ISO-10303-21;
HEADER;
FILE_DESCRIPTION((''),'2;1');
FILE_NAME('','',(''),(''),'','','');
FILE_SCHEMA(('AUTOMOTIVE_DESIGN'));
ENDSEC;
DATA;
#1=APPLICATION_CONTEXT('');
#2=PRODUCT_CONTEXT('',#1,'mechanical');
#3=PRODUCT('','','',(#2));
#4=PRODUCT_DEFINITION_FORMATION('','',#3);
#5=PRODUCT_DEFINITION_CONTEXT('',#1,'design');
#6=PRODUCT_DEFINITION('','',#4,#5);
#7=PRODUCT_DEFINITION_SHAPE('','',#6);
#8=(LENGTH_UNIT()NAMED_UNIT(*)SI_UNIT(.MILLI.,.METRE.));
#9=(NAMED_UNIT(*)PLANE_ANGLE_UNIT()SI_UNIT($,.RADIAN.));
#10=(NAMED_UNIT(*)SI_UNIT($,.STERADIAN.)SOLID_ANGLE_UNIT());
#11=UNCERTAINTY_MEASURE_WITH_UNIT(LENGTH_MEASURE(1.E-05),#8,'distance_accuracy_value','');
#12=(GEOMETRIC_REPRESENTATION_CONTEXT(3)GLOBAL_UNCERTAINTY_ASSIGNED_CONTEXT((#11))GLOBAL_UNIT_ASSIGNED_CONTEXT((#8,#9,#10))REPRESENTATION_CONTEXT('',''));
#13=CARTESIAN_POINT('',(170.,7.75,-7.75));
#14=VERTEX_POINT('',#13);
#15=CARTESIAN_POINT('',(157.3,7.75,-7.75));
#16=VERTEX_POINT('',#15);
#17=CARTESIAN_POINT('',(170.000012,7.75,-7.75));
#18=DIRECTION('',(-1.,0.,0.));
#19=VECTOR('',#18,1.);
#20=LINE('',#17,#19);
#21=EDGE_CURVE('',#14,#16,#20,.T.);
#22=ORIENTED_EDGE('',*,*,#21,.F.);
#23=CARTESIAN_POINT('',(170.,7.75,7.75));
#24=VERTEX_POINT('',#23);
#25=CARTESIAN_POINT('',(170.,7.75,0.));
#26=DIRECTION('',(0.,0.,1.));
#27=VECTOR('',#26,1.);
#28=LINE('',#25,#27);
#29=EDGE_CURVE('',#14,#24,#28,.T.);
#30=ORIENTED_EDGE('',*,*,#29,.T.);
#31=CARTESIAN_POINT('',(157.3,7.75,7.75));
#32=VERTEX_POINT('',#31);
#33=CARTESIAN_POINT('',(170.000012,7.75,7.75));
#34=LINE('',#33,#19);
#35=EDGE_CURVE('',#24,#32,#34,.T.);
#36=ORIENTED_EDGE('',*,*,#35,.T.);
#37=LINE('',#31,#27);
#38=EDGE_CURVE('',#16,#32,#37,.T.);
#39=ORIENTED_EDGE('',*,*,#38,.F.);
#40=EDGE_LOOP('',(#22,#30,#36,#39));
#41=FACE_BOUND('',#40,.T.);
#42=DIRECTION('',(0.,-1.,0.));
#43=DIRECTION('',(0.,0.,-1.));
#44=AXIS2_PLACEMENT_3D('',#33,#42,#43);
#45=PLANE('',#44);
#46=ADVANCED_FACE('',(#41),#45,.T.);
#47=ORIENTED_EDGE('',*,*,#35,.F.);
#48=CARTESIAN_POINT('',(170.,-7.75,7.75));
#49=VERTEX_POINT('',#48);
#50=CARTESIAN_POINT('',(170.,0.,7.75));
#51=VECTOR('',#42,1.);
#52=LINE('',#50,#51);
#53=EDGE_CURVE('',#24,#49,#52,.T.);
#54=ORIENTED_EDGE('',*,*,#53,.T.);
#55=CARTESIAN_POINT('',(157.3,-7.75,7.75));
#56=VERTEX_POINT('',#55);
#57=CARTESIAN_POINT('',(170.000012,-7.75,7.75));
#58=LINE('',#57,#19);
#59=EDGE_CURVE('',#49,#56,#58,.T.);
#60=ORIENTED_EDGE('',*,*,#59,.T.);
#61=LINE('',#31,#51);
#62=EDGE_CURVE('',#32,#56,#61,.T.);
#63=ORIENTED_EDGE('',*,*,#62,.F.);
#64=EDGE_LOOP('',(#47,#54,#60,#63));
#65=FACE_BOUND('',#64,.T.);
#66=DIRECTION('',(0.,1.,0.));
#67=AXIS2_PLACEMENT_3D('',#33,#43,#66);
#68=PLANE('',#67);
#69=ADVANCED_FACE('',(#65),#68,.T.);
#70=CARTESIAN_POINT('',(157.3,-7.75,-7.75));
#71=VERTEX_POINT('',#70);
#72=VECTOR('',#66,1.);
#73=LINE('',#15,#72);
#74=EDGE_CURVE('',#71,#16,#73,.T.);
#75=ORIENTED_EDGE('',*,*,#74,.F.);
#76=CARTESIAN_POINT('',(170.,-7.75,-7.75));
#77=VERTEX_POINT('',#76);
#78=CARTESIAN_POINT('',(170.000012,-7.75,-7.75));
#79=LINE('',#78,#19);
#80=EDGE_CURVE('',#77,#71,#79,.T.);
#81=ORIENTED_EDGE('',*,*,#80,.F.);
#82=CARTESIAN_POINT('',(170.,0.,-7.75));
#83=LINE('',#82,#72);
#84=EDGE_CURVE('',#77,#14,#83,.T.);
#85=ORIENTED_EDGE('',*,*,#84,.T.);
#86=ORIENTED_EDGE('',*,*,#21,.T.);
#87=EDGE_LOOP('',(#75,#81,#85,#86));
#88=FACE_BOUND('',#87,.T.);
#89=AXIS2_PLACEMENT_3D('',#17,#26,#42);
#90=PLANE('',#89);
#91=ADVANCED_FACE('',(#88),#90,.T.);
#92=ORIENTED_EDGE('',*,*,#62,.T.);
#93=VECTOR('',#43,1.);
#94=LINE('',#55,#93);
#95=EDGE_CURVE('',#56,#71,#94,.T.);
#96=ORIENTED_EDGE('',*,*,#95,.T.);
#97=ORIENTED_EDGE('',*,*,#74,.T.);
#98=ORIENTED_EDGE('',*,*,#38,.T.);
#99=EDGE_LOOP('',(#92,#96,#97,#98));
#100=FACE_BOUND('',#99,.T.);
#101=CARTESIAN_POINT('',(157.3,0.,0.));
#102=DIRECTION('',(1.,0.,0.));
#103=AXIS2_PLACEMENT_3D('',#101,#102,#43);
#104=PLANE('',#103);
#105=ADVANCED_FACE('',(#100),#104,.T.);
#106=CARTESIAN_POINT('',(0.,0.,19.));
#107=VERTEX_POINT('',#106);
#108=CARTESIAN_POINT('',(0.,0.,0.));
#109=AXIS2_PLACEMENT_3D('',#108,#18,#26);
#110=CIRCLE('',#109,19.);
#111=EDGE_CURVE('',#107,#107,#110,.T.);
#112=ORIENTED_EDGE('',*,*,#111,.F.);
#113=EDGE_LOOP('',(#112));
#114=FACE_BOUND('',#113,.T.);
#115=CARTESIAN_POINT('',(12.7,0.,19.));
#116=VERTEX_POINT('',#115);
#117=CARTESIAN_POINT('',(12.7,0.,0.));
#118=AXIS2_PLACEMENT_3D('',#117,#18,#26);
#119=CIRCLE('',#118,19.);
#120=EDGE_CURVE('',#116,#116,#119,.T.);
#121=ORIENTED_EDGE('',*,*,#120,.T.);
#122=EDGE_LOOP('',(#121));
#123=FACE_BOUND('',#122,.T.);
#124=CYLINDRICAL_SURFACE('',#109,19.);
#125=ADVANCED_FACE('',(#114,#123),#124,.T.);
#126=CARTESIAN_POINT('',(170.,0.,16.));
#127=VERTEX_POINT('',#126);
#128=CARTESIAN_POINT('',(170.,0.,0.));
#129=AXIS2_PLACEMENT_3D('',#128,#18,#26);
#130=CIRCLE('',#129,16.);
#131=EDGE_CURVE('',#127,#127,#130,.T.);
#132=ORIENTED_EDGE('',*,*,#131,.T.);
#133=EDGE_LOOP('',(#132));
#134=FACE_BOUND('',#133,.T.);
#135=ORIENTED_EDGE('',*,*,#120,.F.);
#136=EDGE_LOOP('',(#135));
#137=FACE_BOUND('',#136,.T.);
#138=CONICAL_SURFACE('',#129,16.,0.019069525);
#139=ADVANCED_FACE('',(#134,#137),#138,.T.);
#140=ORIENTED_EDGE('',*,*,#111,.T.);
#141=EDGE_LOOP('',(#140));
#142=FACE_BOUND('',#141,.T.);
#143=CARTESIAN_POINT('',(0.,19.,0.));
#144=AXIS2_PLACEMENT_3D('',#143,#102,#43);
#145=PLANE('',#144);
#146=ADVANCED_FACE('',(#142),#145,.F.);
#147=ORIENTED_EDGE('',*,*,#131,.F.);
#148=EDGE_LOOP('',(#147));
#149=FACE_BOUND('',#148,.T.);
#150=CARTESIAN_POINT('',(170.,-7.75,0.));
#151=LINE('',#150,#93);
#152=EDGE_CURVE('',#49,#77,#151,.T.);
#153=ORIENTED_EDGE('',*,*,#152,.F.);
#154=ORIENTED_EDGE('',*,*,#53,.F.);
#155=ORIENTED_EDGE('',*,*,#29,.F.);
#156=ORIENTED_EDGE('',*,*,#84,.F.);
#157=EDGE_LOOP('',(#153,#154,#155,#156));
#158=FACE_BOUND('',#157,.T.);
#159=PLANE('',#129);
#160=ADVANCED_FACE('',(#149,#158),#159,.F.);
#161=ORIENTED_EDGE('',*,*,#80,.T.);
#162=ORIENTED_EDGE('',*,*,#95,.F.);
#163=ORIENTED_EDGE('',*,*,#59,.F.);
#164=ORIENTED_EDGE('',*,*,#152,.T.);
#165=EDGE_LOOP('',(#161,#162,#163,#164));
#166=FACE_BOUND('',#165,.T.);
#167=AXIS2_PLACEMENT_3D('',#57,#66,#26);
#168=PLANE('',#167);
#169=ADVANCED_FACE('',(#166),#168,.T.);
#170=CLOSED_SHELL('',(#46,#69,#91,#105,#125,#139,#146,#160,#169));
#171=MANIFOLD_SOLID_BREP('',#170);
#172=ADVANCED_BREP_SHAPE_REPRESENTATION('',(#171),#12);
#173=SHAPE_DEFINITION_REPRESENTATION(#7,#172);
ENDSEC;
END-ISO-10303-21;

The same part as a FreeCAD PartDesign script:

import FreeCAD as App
import Part
import Sketcher
from FreeCAD import Vector
Q = App.Units.Quantity

doc = App.newDocument("Part")
body = doc.addObject("PartDesign::Body", "Body")

# Sketch on XY plane
sketch1 = doc.addObject("Sketcher::SketchObject", "Sketch")
body.addObject(sketch1)
sketch1.AttachmentSupport = (doc.XY_Plane, [""])
sketch1.MapMode = "FlatFace"
sketch1.addGeometry(Part.LineSegment(Vector(0, 0, 0), Vector(170, 0, 0)), False)
sketch1.addGeometry(Part.LineSegment(Vector(170, 0, 0), Vector(170, 16, 0)), False)
sketch1.addGeometry(Part.LineSegment(Vector(170, 16, 0), Vector(13, 19, 0)), False)
sketch1.addGeometry(Part.LineSegment(Vector(13, 19, 0), Vector(0, 19, 0)), False)
sketch1.addGeometry(Part.LineSegment(Vector(0, 19, 0), Vector(0, 0, 0)), False)
sketch1.addConstraint(Sketcher.Constraint("Coincident", 0, 2, 1, 1))
sketch1.addConstraint(Sketcher.Constraint("Coincident", 1, 2, 2, 1))
sketch1.addConstraint(Sketcher.Constraint("Coincident", 2, 2, 3, 1))
sketch1.addConstraint(Sketcher.Constraint("Coincident", 3, 2, 4, 1))
sketch1.addConstraint(Sketcher.Constraint("Coincident", 4, 2, 0, 1))
sketch1.addConstraint(Sketcher.Constraint("Horizontal", 0))
sketch1.addConstraint(Sketcher.Constraint("Vertical", 1))
sketch1.addConstraint(Sketcher.Constraint("Horizontal", 3))
sketch1.addConstraint(Sketcher.Constraint("Vertical", 4))
sketch1.addConstraint(Sketcher.Constraint("Coincident", 4, 2, -1, 1))
sketch1.addConstraint(Sketcher.Constraint("DistanceX", 0, 1, 0, 2, Q("170 mm")))
sketch1.addConstraint(Sketcher.Constraint("DistanceY", 1, 1, 1, 2, Q("16 mm")))
sketch1.addConstraint(Sketcher.Constraint("DistanceY", 4, 2, 4, 1, Q("19 mm")))
sketch1.addConstraint(Sketcher.Constraint("DistanceX", 3, 2, 3, 1, Q("12.7 mm")))
revolution = doc.addObject("PartDesign::Revolution", "Revolution")
body.addObject(revolution)
revolution.Profile = sketch1
revolution.ReferenceAxis = (sketch1, ["H_Axis"])
revolution.Angle = 360

# Sketch on YZ plane
sketch2 = doc.addObject("Sketcher::SketchObject", "Sketch001")
body.addObject(sketch2)
sketch2.AttachmentSupport = (doc.YZ_Plane, [""])
sketch2.MapMode = "FlatFace"
sketch2.AttachmentOffset = App.Placement(Vector(0, 0, 170), App.Rotation())
sketch2.addGeometry(Part.LineSegment(Vector(8, 8, 0), Vector(-8, 8, 0)), False)
sketch2.addGeometry(Part.LineSegment(Vector(-8, 8, 0), Vector(-8, -8, 0)), False)
sketch2.addGeometry(Part.LineSegment(Vector(-8, -8, 0), Vector(8, -8, 0)), False)
sketch2.addGeometry(Part.LineSegment(Vector(8, -8, 0), Vector(8, 8, 0)), False)
sketch2.addConstraint(Sketcher.Constraint("Coincident", 0, 2, 1, 1))
sketch2.addConstraint(Sketcher.Constraint("Coincident", 1, 2, 2, 1))
sketch2.addConstraint(Sketcher.Constraint("Coincident", 2, 2, 3, 1))
sketch2.addConstraint(Sketcher.Constraint("Coincident", 3, 2, 0, 1))
sketch2.addConstraint(Sketcher.Constraint("Horizontal", 0))
sketch2.addConstraint(Sketcher.Constraint("Vertical", 1))
sketch2.addConstraint(Sketcher.Constraint("Horizontal", 2))
sketch2.addConstraint(Sketcher.Constraint("Vertical", 3))
sketch2.addConstraint(Sketcher.Constraint("Symmetric", 0, 2, 2, 2, -1, 1))
sketch2.addConstraint(Sketcher.Constraint("Equal", 2, 1))
sketch2.addConstraint(Sketcher.Constraint("DistanceX", 0, 2, 0, 1, Q("15.5 mm")))
pocket1 = doc.addObject("PartDesign::Pocket", "Pocket")
body.addObject(pocket1)
pocket1.Profile = sketch2
pocket1.Type = "TwoLengths"
pocket1.Length = 173.11043
pocket1.Length2 = 12.7
pocket1.Reversed = True

doc.recompute()
